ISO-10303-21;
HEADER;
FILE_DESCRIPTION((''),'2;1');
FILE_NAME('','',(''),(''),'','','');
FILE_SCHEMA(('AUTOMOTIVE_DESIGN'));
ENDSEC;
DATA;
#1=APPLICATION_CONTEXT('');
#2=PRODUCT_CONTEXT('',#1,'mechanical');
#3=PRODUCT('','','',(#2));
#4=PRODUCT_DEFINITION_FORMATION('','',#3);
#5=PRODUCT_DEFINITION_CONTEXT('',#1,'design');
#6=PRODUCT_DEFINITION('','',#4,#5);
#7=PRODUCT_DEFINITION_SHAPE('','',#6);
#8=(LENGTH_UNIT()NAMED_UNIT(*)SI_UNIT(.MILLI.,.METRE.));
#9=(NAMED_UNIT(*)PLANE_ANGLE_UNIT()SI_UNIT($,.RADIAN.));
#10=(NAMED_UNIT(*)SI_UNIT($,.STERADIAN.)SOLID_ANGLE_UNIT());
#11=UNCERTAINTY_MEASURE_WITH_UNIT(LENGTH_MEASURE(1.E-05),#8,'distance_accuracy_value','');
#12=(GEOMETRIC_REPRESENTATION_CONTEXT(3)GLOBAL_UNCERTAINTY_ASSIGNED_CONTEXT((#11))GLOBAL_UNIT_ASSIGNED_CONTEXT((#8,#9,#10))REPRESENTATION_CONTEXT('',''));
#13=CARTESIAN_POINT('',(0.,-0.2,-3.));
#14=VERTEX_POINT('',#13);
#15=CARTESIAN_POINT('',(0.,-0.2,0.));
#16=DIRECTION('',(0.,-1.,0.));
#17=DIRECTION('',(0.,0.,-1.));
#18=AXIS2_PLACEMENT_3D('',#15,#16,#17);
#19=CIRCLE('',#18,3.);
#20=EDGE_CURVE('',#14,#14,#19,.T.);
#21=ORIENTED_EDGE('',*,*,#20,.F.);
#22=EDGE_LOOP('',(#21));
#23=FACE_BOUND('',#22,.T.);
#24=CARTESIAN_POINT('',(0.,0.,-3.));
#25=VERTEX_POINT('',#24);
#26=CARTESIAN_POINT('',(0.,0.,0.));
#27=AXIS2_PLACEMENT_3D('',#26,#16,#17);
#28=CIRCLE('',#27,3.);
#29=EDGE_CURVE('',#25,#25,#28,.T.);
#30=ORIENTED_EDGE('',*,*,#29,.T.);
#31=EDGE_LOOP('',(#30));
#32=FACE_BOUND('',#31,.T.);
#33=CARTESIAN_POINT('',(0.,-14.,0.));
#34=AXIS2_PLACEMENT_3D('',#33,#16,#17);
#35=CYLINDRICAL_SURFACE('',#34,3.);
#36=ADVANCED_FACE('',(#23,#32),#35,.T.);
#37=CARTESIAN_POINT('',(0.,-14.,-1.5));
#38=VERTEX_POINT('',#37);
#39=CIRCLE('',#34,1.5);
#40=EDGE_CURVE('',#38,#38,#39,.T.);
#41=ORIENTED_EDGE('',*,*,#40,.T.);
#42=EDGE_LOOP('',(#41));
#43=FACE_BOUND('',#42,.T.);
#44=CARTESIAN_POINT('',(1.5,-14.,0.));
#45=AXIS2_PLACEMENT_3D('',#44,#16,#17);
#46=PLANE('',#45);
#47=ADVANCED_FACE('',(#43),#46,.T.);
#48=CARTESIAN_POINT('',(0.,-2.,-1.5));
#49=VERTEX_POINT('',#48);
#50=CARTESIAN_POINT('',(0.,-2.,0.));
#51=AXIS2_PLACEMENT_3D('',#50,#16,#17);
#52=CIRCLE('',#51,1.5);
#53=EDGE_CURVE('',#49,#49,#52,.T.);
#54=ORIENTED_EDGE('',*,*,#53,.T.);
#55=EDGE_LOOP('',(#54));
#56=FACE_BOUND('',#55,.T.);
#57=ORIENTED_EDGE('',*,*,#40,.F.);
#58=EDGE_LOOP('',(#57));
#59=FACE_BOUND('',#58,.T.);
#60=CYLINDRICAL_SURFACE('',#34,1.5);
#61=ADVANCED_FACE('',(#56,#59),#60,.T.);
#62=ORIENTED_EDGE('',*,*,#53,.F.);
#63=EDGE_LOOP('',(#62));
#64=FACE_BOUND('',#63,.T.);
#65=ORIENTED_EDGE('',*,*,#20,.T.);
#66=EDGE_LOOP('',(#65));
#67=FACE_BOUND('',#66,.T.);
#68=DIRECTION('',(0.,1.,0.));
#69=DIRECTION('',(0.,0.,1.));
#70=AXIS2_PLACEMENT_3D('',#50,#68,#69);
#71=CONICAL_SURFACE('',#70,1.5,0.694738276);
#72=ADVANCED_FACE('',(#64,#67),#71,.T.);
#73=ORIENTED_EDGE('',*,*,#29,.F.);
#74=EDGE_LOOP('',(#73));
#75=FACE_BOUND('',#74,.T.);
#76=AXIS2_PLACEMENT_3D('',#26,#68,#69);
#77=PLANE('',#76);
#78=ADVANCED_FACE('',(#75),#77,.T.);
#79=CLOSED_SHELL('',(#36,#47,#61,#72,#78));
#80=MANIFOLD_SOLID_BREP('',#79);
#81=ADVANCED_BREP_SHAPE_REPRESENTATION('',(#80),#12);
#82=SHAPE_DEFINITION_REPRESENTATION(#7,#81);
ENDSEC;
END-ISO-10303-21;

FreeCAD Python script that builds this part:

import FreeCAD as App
import Part
import Sketcher

V = App.Vector
Q = App.Units.Quantity

doc = App.newDocument("Part")
body = doc.addObject("PartDesign::Body", "Body")

# Sketch on XY plane
sketch1 = doc.addObject("Sketcher::SketchObject", "Sketch")
body.addObject(sketch1)
sketch1.AttachmentSupport = (doc.XY_Plane, [""])
sketch1.MapMode = "FlatFace"
sketch1.addGeometry([
    Part.LineSegment(V(3, 0, 0), V(0, 0, 0)),  # 0
    Part.LineSegment(V(0, 0, 0), V(0, -14, 0)),  # 1
    Part.LineSegment(V(0, -14, 0), V(1.5, -14, 0)),  # 2
    Part.LineSegment(V(1.5, -14, 0), V(1.5, -2, 0)),  # 3
    Part.LineSegment(V(1.5, -2, 0), V(3, -0.2, 0)),  # 4
    Part.LineSegment(V(3, -0.2, 0), V(3, 0, 0)),  # 5
], False)
sketch1.addConstraint([
    Sketcher.Constraint("Coincident", 0, 2, 1, 1),
    Sketcher.Constraint("Coincident", 1, 2, 2, 1),
    Sketcher.Constraint("Coincident", 2, 2, 3, 1),
    Sketcher.Constraint("Coincident", 3, 2, 4, 1),
    Sketcher.Constraint("Coincident", 4, 2, 5, 1),
    Sketcher.Constraint("Coincident", 5, 2, 0, 1),
    Sketcher.Constraint("Horizontal", 0),
    Sketcher.Constraint("Vertical", 1),
    Sketcher.Constraint("Horizontal", 2),
    Sketcher.Constraint("Vertical", 3),
    Sketcher.Constraint("Vertical", 5),
    Sketcher.Constraint("Coincident", 0, 2, -1, 1),
    Sketcher.Constraint("DistanceX", 0, 2, 0, 1, Q("3 mm")),
    Sketcher.Constraint("DistanceY", 1, 2, 1, 1, Q("14 mm")),
    Sketcher.Constraint("DistanceY", 3, 1, 3, 2, Q("12 mm")),
    Sketcher.Constraint("DistanceX", 2, 1, 2, 2, Q("1.5 mm")),
    Sketcher.Constraint("DistanceY", 5, 1, 5, 2, Q("0.2 mm")),
])
revolution = doc.addObject("PartDesign::Revolution", "Revolution")
body.addObject(revolution)
revolution.Profile = sketch1
revolution.ReferenceAxis = (sketch1, ["V_Axis"])
revolution.Angle = 360

doc.recompute()
